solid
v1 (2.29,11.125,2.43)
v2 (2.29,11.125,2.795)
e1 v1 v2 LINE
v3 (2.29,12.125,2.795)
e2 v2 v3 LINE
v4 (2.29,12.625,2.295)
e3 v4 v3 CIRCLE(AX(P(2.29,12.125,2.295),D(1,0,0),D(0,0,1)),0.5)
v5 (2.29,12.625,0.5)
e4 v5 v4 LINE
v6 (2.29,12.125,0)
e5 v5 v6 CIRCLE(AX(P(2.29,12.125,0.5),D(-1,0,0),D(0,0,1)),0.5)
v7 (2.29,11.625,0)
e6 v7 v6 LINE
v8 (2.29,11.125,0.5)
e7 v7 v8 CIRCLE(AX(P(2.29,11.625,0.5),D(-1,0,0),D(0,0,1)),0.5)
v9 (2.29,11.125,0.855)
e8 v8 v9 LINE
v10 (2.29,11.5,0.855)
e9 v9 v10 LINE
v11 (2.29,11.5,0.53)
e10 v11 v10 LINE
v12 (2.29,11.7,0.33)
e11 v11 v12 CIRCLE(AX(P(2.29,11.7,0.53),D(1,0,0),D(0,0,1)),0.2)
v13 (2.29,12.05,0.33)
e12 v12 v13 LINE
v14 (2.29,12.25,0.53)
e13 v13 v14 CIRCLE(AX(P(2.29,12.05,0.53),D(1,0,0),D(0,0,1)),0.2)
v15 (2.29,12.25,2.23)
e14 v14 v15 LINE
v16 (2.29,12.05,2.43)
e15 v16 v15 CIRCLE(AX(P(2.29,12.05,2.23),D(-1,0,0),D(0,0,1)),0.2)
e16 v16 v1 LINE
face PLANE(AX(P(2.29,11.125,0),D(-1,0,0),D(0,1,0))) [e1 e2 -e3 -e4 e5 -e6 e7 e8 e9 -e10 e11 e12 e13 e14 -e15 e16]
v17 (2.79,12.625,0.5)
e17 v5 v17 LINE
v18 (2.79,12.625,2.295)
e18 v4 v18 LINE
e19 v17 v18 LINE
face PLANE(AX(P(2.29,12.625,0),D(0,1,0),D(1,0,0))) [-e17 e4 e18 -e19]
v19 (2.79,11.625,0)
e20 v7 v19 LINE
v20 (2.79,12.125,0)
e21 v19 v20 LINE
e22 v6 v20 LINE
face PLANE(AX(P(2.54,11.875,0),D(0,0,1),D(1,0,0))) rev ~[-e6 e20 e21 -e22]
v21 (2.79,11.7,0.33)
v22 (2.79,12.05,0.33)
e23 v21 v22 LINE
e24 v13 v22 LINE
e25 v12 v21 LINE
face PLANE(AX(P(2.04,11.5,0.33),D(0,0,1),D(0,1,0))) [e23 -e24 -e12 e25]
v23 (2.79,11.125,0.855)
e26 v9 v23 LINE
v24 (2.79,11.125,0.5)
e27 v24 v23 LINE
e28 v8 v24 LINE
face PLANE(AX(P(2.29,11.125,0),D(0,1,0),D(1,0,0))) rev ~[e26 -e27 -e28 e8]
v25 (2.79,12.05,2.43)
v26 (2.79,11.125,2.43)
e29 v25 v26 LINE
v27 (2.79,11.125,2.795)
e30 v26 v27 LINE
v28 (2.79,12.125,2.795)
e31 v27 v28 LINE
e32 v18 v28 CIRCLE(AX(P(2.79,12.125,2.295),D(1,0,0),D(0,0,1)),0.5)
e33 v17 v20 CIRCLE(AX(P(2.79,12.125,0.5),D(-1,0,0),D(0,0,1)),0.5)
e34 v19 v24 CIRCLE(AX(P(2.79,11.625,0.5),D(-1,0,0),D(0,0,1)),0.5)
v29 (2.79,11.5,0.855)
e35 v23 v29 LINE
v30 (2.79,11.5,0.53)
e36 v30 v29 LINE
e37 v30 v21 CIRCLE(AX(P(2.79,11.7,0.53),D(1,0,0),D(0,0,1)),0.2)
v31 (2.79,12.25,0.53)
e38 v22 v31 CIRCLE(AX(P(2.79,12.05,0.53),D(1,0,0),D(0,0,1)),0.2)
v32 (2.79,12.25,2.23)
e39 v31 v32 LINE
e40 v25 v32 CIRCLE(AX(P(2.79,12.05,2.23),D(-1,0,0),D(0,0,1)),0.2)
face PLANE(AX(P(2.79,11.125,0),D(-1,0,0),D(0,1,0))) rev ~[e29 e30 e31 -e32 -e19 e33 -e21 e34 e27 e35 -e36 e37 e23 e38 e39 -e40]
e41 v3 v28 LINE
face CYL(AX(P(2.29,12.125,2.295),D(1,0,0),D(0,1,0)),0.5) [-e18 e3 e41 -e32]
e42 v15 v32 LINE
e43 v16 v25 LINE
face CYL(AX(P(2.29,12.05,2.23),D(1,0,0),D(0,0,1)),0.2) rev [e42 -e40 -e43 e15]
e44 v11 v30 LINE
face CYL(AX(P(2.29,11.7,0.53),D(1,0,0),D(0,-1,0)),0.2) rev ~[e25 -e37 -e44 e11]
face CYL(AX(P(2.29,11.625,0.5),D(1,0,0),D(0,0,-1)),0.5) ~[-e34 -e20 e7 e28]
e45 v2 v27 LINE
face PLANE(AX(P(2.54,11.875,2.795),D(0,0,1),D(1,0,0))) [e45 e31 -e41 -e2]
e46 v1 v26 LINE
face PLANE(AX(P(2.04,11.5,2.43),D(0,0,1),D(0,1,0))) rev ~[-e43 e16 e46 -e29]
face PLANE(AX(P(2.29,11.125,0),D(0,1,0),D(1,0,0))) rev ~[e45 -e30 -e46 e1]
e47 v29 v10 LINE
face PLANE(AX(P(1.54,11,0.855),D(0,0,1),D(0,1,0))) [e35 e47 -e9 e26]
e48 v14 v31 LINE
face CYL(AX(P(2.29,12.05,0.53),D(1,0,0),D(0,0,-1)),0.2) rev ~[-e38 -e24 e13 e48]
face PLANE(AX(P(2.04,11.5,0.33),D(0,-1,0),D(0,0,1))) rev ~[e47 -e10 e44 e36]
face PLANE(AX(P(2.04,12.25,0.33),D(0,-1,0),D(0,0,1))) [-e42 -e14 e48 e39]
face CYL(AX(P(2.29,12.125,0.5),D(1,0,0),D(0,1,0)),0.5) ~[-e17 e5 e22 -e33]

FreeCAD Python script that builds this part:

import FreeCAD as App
import Part
import Sketcher
from FreeCAD import Vector
Q = App.Units.Quantity


def edges_at(feature, points):
    """Names of the edges that pass closest to the given points."""
    edges = feature.Shape.Edges
    near = lambda p: min(range(len(edges)), key=lambda i: edges[i].distToShape(Part.Vertex(*p))[0])
    return sorted({f"Edge{near(p) + 1}" for p in points})

doc = App.newDocument("Part")
body = doc.addObject("PartDesign::Body", "Body")

sketch1 = body.newObject("Sketcher::SketchObject", "Sketch")
sketch1.AttachmentSupport = (doc.getObject("XY_Plane"), [""])
sketch1.MapMode = "FlatFace"
sketch1.addGeometry([
    Part.LineSegment(Vector(-0.25, 12.625, 0), Vector(-0.25, 11.125, 0)),
    Part.LineSegment(Vector(-0.25, 11.125, 0), Vector(0.25, 11.125, 0)),
    Part.LineSegment(Vector(0.25, 11.125, 0), Vector(0.25, 12.625, 0)),
    Part.LineSegment(Vector(0.25, 12.625, 0), Vector(-0.25, 12.625, 0)),
], False)
sketch1.addConstraint([
    Sketcher.Constraint("Coincident", 0, 2, 1, 1),
    Sketcher.Constraint("Coincident", 1, 2, 2, 1),
    Sketcher.Constraint("Coincident", 2, 2, 3, 1),
    Sketcher.Constraint("Coincident", 3, 2, 0, 1),
    Sketcher.Constraint("Vertical", 0),
    Sketcher.Constraint("Horizontal", 1),
    Sketcher.Constraint("Vertical", 2),
    Sketcher.Constraint("Horizontal", 3),
    Sketcher.Constraint("DistanceX", 1, 1, 1, 2, Q("0.5 mm")),
    Sketcher.Constraint("DistanceY", 0, 2, 0, 1, Q("1.5 mm")),
    Sketcher.Constraint("DistanceX", 0, 2, -1, 1, Q("0.25 mm")),
    Sketcher.Constraint("DistanceY", -1, 1, 0, 2, Q("11.125 mm")),
])
pad1 = body.newObject("PartDesign::Pad", "Pad")
pad1.Profile = sketch1
pad1.Length = 2.795
doc.recompute()

fillet = body.newObject("PartDesign::Fillet", "Fillet")
fillet.Base = (pad1, edges_at(pad1, [(0, 12.625, 0)]))
fillet.Radius = 0.5
doc.recompute()

fillet2 = body.newObject("PartDesign::Fillet", "Fillet001")
fillet2.Base = (fillet, edges_at(fillet, [(0, 12.625, 2.795)]))
fillet2.Radius = 0.5
doc.recompute()

fillet3 = body.newObject("PartDesign::Fillet", "Fillet002")
fillet3.Base = (fillet2, edges_at(fillet2, [(0, 11.125, 0)]))
fillet3.Radius = 0.5

sketch2 = body.newObject("Sketcher::SketchObject", "Sketch001")
sketch2.AttachmentSupport = (doc.getObject("YZ_Plane"), [""])
sketch2.MapMode = "FlatFace"
sketch2.AttachmentOffset = App.Placement(Vector(0, 0, -0.5), App.Rotation())
sketch2.addGeometry([
    Part.LineSegment(Vector(11.5, 2.43, 0), Vector(11.5, 0.33, 0)),
    Part.LineSegment(Vector(11.5, 0.33, 0), Vector(12.25, 0.33, 0)),
    Part.LineSegment(Vector(12.25, 0.33, 0), Vector(12.25, 2.43, 0)),
    Part.LineSegment(Vector(12.25, 2.43, 0), Vector(11.5, 2.43, 0)),
], False)
sketch2.addConstraint([
    Sketcher.Constraint("Coincident", 0, 2, 1, 1),
    Sketcher.Constraint("Coincident", 1, 2, 2, 1),
    Sketcher.Constraint("Coincident", 2, 2, 3, 1),
    Sketcher.Constraint("Coincident", 3, 2, 0, 1),
    Sketcher.Constraint("Vertical", 0),
    Sketcher.Constraint("Horizontal", 1),
    Sketcher.Constraint("Vertical", 2),
    Sketcher.Constraint("Horizontal", 3),
    Sketcher.Constraint("DistanceY", 0, 2, 0, 1, Q("2.1 mm")),
    Sketcher.Constraint("DistanceX", 1, 1, 1, 2, Q("0.75 mm")),
    Sketcher.Constraint("DistanceX", -1, 1, 0, 2, Q("11.5 mm")),
    Sketcher.Constraint("DistanceY", -1, 1, 0, 2, Q("0.33 mm")),
])
pocket1 = body.newObject("PartDesign::Pocket", "Pocket")
pocket1.Profile = sketch2
pocket1.Length = 1
pocket1.Reversed = True
doc.recompute()

fillet4 = body.newObject("PartDesign::Fillet", "Fillet003")
fillet4.Base = (pocket1, edges_at(pocket1, [(0, 11.5, 0.33)]))
fillet4.Radius = 0.2
doc.recompute()

fillet5 = body.newObject("PartDesign::Fillet", "Fillet004")
fillet5.Base = (fillet4, edges_at(fillet4, [(0, 12.25, 0.33)]))
fillet5.Radius = 0.2
doc.recompute()

fillet6 = body.newObject("PartDesign::Fillet", "Fillet005")
fillet6.Base = (fillet5, edges_at(fillet5, [(0, 11.5, 2.43)]))
fillet6.Radius = 0.2
doc.recompute()

fillet7 = body.newObject("PartDesign::Fillet", "Fillet006")
fillet7.Base = (fillet6, edges_at(fillet6, [(0, 12.25, 2.43)]))
fillet7.Radius = 0.2

sketch3 = body.newObject("Sketcher::SketchObject", "Sketch002")
sketch3.AttachmentSupport = (doc.getObject("YZ_Plane"), [""])
sketch3.MapMode = "FlatFace"
sketch3.AttachmentOffset = App.Placement(Vector(0, 0, -1), App.Rotation())
sketch3.addGeometry([
    Part.LineSegment(Vector(11, 2.43, 0), Vector(11, 0.855, 0)),
    Part.LineSegment(Vector(11, 0.855, 0), Vector(12, 0.855, 0)),
    Part.LineSegment(Vector(12, 0.855, 0), Vector(12, 2.43, 0)),
    Part.LineSegment(Vector(12, 2.43, 0), Vector(11, 2.43, 0)),
], False)
sketch3.addConstraint([
    Sketcher.Constraint("Coincident", 0, 2, 1, 1),
    Sketcher.Constraint("Coincident", 1, 2, 2, 1),
    Sketcher.Constraint("Coincident", 2, 2, 3, 1),
    Sketcher.Constraint("Coincident", 3, 2, 0, 1),
    Sketcher.Constraint("Vertical", 0),
    Sketcher.Constraint("Horizontal", 1),
    Sketcher.Constraint("Vertical", 2),
    Sketcher.Constraint("Horizontal", 3),
    Sketcher.Constraint("DistanceX", 1, 1, 1, 2, Q("1 mm")),
    Sketcher.Constraint("DistanceX", -1, 1, 0, 2, Q("11 mm")),
    Sketcher.Constraint("DistanceY", 0, 2, 0, 1, Q("1.575 mm")),
    Sketcher.Constraint("DistanceY", -1, 1, 2, 2, Q("2.43 mm")),
])
pocket2 = body.newObject("PartDesign::Pocket", "Pocket001")
pocket2.Profile = sketch3
pocket2.Length = 3
pocket2.Reversed = True
body2 = doc.addObject("PartDesign::Body", "Body001")
doc.recompute()

body.Placement = App.Placement(Vector(2.54, 0, 0), App.Rotation(Vector(0, 0, 1), 0))
boolean = body2.newObject("PartDesign::Boolean", "Boolean")
boolean.Type = "Fuse"
boolean.addObjects([body])

doc.recompute()
